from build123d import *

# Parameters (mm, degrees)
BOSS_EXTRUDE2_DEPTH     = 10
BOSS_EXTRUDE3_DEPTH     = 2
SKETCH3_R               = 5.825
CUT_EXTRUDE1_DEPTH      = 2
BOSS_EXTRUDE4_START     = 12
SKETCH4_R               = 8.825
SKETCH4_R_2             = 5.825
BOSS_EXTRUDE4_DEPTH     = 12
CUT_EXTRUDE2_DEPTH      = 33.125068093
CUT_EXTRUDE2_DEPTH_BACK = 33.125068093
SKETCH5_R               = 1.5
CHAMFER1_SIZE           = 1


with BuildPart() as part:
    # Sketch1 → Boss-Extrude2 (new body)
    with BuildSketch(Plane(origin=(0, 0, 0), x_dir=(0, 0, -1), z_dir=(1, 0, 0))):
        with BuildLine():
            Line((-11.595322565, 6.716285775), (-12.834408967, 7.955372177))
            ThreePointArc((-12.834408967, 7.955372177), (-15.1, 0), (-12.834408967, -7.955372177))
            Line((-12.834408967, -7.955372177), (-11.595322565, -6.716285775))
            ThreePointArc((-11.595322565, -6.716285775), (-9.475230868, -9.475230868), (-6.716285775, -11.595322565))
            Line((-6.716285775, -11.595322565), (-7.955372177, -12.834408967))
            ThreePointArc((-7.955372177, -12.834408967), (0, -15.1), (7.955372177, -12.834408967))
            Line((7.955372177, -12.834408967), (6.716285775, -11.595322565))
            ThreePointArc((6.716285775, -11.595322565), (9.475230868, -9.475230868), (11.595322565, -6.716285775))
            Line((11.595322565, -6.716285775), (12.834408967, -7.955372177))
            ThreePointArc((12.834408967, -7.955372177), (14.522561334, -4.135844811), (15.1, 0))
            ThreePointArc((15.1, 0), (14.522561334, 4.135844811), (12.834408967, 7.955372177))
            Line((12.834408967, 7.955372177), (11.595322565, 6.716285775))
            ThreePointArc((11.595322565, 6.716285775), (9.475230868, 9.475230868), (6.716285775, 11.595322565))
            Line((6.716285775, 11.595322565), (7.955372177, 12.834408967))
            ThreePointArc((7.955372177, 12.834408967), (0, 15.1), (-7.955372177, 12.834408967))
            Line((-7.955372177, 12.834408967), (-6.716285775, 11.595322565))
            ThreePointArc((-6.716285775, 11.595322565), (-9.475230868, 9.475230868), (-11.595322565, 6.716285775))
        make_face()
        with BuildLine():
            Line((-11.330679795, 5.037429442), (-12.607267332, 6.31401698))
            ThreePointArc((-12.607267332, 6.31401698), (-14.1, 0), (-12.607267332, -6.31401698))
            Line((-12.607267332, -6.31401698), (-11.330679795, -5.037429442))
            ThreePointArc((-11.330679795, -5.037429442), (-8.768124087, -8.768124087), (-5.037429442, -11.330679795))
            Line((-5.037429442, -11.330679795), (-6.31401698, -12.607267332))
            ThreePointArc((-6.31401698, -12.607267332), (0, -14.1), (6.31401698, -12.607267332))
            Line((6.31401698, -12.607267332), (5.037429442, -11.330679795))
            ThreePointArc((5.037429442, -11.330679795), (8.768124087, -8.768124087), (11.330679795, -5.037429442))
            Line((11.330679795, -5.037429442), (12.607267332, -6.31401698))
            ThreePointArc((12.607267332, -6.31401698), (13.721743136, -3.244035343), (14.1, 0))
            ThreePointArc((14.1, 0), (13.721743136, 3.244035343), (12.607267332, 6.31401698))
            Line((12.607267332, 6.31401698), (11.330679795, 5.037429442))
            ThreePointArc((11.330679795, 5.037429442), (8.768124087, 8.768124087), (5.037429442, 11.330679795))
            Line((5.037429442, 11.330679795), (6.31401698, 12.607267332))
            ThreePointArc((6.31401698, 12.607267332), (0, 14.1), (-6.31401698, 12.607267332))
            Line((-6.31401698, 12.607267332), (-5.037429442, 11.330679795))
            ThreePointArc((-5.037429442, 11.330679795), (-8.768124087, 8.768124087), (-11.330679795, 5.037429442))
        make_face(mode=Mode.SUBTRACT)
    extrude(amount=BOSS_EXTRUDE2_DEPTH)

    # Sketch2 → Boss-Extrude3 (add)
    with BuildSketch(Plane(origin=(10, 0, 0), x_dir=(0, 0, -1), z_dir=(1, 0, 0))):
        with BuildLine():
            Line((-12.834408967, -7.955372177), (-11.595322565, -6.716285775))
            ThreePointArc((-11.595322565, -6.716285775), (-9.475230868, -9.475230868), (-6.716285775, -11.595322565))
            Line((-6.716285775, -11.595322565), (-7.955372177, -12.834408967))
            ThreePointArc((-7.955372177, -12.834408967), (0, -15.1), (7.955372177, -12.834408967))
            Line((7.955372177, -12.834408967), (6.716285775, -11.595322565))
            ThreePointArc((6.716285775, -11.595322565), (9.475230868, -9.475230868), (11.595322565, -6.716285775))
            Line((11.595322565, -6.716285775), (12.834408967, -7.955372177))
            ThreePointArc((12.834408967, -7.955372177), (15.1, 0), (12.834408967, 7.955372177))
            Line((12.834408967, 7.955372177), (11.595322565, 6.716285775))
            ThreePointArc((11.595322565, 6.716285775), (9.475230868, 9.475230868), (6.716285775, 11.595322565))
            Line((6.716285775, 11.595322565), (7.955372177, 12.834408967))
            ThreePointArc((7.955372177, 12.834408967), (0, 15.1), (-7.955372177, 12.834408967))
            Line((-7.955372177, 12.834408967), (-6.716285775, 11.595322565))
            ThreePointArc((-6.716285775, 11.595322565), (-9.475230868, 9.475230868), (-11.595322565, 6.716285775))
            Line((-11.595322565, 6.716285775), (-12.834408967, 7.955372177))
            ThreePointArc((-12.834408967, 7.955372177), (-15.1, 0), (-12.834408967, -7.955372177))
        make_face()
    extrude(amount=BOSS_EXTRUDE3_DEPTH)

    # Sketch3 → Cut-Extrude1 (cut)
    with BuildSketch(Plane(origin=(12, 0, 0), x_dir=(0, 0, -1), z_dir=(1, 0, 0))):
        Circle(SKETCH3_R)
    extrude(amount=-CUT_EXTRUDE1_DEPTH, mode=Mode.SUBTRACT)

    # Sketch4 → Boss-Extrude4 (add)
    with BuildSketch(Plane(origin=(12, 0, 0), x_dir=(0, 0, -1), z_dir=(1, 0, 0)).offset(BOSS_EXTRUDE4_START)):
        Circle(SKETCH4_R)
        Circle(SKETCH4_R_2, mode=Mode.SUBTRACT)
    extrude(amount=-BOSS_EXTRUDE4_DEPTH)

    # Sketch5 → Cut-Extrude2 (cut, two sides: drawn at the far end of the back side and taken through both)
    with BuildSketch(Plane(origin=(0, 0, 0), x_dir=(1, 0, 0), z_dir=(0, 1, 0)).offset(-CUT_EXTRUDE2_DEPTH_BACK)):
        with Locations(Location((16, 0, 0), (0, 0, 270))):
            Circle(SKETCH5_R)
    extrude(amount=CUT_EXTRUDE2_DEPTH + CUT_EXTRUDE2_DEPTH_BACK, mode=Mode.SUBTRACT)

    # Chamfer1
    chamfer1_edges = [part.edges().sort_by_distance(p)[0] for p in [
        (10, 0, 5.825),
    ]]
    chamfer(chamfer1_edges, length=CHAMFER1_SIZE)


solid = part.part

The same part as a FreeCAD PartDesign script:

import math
import FreeCAD as App
import Part
import Sketcher

V = App.Vector


def edges_at(feature, points):
    """Names of the edges that pass closest to the given points."""
    edges = feature.Shape.Edges
    near = lambda p: min(range(len(edges)), key=lambda i: edges[i].distToShape(Part.Vertex(*p))[0])
    return sorted({f"Edge{near(p) + 1}" for p in points})

doc = App.newDocument("Part")
body = doc.addObject("PartDesign::Body", "Body")

# Sketch on YZ plane
sketch1 = body.newObject("Sketcher::SketchObject", "Sketch")
sketch1.AttachmentSupport = (doc.getObject("YZ_Plane"), [""])
sketch1.MapMode = "FlatFace"
sketch1.addGeometry(Part.LineSegment(V(6.716286, 11.595323, 0), V(7.955372, 12.834409, 0)), False)
sketch1.addGeometry(Part.ArcOfCircle(Part.Circle(V(0, 0, 0), V(0, 0, 1), 15.1), math.radians(58.207412), math.radians(121.792588)), False)
sketch1.addGeometry(Part.LineSegment(V(-7.955372, 12.834409, 0), V(-6.716286, 11.595323, 0)), False)
sketch1.addGeometry(Part.ArcOfCircle(Part.Circle(V(0, 0, 0), V(0, 0, 1), 13.4), math.radians(120.08044), math.radians(149.91956)), False)
sketch1.addGeometry(Part.LineSegment(V(-11.595323, 6.716286, 0), V(-12.834409, 7.955372, 0)), False)
sketch1.addGeometry(Part.ArcOfCircle(Part.Circle(V(0, 0, 0), V(0, 0, 1), 15.1), math.radians(148.207412), math.radians(211.792588)), False)
sketch1.addGeometry(Part.LineSegment(V(-12.834409, -7.955372, 0), V(-11.595323, -6.716286, 0)), False)
sketch1.addGeometry(Part.ArcOfCircle(Part.Circle(V(0, 0, 0), V(0, 0, 1), 13.4), math.radians(-149.91956), math.radians(-120.08044)), False)
sketch1.addGeometry(Part.LineSegment(V(-6.716286, -11.595323, 0), V(-7.955372, -12.834409, 0)), False)
sketch1.addGeometry(Part.ArcOfCircle(Part.Circle(V(0, 0, 0), V(0, 0, 1), 15.1), math.radians(-121.792588), math.radians(-90)), False)
sketch1.addGeometry(Part.ArcOfCircle(Part.Circle(V(0, 0, 0), V(0, 0, 1), 15.1), math.radians(-90), math.radians(-58.207412)), False)
sketch1.addGeometry(Part.LineSegment(V(7.955372, -12.834409, 0), V(6.716286, -11.595323, 0)), False)
sketch1.addGeometry(Part.ArcOfCircle(Part.Circle(V(0, 0, 0), V(0, 0, 1), 13.4), math.radians(-59.91956), math.radians(-30.08044)), False)
sketch1.addGeometry(Part.LineSegment(V(11.595323, -6.716286, 0), V(12.834409, -7.955372, 0)), False)
sketch1.addGeometry(Part.ArcOfCircle(Part.Circle(V(0, 0, 0), V(0, 0, 1), 15.1), math.radians(-31.792588), math.radians(31.792588)), False)
sketch1.addGeometry(Part.LineSegment(V(12.834409, 7.955372, 0), V(11.595323, 6.716286, 0)), False)
sketch1.addGeometry(Part.ArcOfCircle(Part.Circle(V(0, 0, 0), V(0, 0, 1), 13.4), math.radians(30.08044), math.radians(59.91956)), False)
sketch1.addGeometry(Part.LineSegment(V(6.314017, 12.607267, 0), V(5.037429, 11.33068, 0)), False)
sketch1.addGeometry(Part.ArcOfCircle(Part.Circle(V(0, 0, 0), V(0, 0, 1), 12.4), math.radians(23.969126), math.radians(66.030874)), False)
sketch1.addGeometry(Part.LineSegment(V(11.33068, 5.037429, 0), V(12.607267, 6.314017, 0)), False)
sketch1.addGeometry(Part.ArcOfCircle(Part.Circle(V(0, 0, 0), V(0, 0, 1), 14.1), math.radians(-26.60279), math.radians(26.60279)), False)
sketch1.addGeometry(Part.LineSegment(V(12.607267, -6.314017, 0), V(11.33068, -5.037429, 0)), False)
sketch1.addGeometry(Part.ArcOfCircle(Part.Circle(V(0, 0, 0), V(0, 0, 1), 12.4), math.radians(-66.030874), math.radians(-23.969126)), False)
sketch1.addGeometry(Part.LineSegment(V(5.037429, -11.33068, 0), V(6.314017, -12.607267, 0)), False)
sketch1.addGeometry(Part.ArcOfCircle(Part.Circle(V(0, 0, 0), V(0, 0, 1), 14.1), math.radians(-90), math.radians(-63.39721)), False)
sketch1.addGeometry(Part.ArcOfCircle(Part.Circle(V(0, 0, 0), V(0, 0, 1), 14.1), math.radians(-116.60279), math.radians(-90)), False)
sketch1.addGeometry(Part.LineSegment(V(-6.314017, -12.607267, 0), V(-5.037429, -11.33068, 0)), False)
sketch1.addGeometry(Part.ArcOfCircle(Part.Circle(V(0, 0, 0), V(0, 0, 1), 12.4), math.radians(-156.030874), math.radians(-113.969126)), False)
sketch1.addGeometry(Part.LineSegment(V(-11.33068, -5.037429, 0), V(-12.607267, -6.314017, 0)), False)
sketch1.addGeometry(Part.ArcOfCircle(Part.Circle(V(0, 0, 0), V(0, 0, 1), 14.1), math.radians(153.39721), math.radians(206.60279)), False)
sketch1.addGeometry(Part.LineSegment(V(-12.607267, 6.314017, 0), V(-11.33068, 5.037429, 0)), False)
sketch1.addGeometry(Part.ArcOfCircle(Part.Circle(V(0, 0, 0), V(0, 0, 1), 12.4), math.radians(113.969126), math.radians(156.030874)), False)
sketch1.addGeometry(Part.LineSegment(V(-5.037429, 11.33068, 0), V(-6.314017, 12.607267, 0)), False)
sketch1.addGeometry(Part.ArcOfCircle(Part.Circle(V(0, 0, 0), V(0, 0, 1), 14.1), math.radians(63.39721), math.radians(116.60279)), False)
sketch1.addConstraint(Sketcher.Constraint("Coincident", 0, 2, 1, 1))
sketch1.addConstraint(Sketcher.Constraint("Coincident", 1, 2, 2, 1))
sketch1.addConstraint(Sketcher.Constraint("Coincident", 2, 2, 3, 1))
sketch1.addConstraint(Sketcher.Constraint("Coincident", 3, 2, 4, 1))
sketch1.addConstraint(Sketcher.Constraint("Coincident", 4, 2, 5, 1))
sketch1.addConstraint(Sketcher.Constraint("Coincident", 5, 2, 6, 1))
sketch1.addConstraint(Sketcher.Constraint("Coincident", 6, 2, 7, 1))
sketch1.addConstraint(Sketcher.Constraint("Coincident", 7, 2, 8, 1))
sketch1.addConstraint(Sketcher.Constraint("Coincident", 8, 2, 9, 1))
sketch1.addConstraint(Sketcher.Constraint("Tangent", 9, 2, 10, 1))
sketch1.addConstraint(Sketcher.Constraint("Coincident", 10, 2, 11, 1))
sketch1.addConstraint(Sketcher.Constraint("Coincident", 11, 2, 12, 1))
sketch1.addConstraint(Sketcher.Constraint("Coincident", 12, 2, 13, 1))
sketch1.addConstraint(Sketcher.Constraint("Coincident", 13, 2, 14, 1))
sketch1.addConstraint(Sketcher.Constraint("Coincident", 14, 2, 15, 1))
sketch1.addConstraint(Sketcher.Constraint("Coincident", 15, 2, 16, 1))
sketch1.addConstraint(Sketcher.Constraint("Coincident", 16, 2, 0, 1))
sketch1.addConstraint(Sketcher.Constraint("Coincident", 17, 2, 18, 2))
sketch1.addConstraint(Sketcher.Constraint("Coincident", 18, 1, 19, 1))
sketch1.addConstraint(Sketcher.Constraint("Coincident", 19, 2, 20, 2))
sketch1.addConstraint(Sketcher.Constraint("Coincident", 20, 1, 21, 1))
sketch1.addConstraint(Sketcher.Constraint("Coincident", 21, 2, 22, 2))
sketch1.addConstraint(Sketcher.Constraint("Coincident", 22, 1, 23, 1))
sketch1.addConstraint(Sketcher.Constraint("Coincident", 23, 2, 24, 2))
sketch1.addConstraint(Sketcher.Constraint("Tangent", 24, 1, 25, 2))
sketch1.addConstraint(Sketcher.Constraint("Coincident", 25, 1, 26, 1))
sketch1.addConstraint(Sketcher.Constraint("Coincident", 26, 2, 27, 2))
sketch1.addConstraint(Sketcher.Constraint("Coincident", 27, 1, 28, 1))
sketch1.addConstraint(Sketcher.Constraint("Coincident", 28, 2, 29, 2))
sketch1.addConstraint(Sketcher.Constraint("Coincident", 29, 1, 30, 1))
sketch1.addConstraint(Sketcher.Constraint("Coincident", 30, 2, 31, 2))
sketch1.addConstraint(Sketcher.Constraint("Coincident", 31, 1, 32, 1))
sketch1.addConstraint(Sketcher.Constraint("Coincident", 32, 2, 33, 2))
sketch1.addConstraint(Sketcher.Constraint("Coincident", 33, 1, 17, 1))
sketch1.addConstraint(Sketcher.Constraint("Coincident", 1, 3, -1, 1))
sketch1.addConstraint(Sketcher.Constraint("Coincident", 3, 3, -1, 1))
sketch1.addConstraint(Sketcher.Constraint("Coincident", 5, 3, -1, 1))
sketch1.addConstraint(Sketcher.Constraint("Coincident", 7, 3, -1, 1))
sketch1.addConstraint(Sketcher.Constraint("Coincident", 9, 3, -1, 1))
sketch1.addConstraint(Sketcher.Constraint("Coincident", 12, 3, -1, 1))
sketch1.addConstraint(Sketcher.Constraint("Coincident", 14, 3, -1, 1))
sketch1.addConstraint(Sketcher.Constraint("Coincident", 16, 3, -1, 1))
sketch1.addConstraint(Sketcher.Constraint("Coincident", 18, 3, -1, 1))
sketch1.addConstraint(Sketcher.Constraint("Coincident", 20, 3, -1, 1))
sketch1.addConstraint(Sketcher.Constraint("Coincident", 22, 3, -1, 1))
sketch1.addConstraint(Sketcher.Constraint("Coincident", 24, 3, -1, 1))
sketch1.addConstraint(Sketcher.Constraint("Coincident", 27, 3, -1, 1))
sketch1.addConstraint(Sketcher.Constraint("Coincident", 29, 3, -1, 1))
sketch1.addConstraint(Sketcher.Constraint("Coincident", 31, 3, -1, 1))
sketch1.addConstraint(Sketcher.Constraint("Coincident", 33, 3, -1, 1))
sketch1.addConstraint(Sketcher.Constraint("Equal", 1, 5))
sketch1.addConstraint(Sketcher.Constraint("Equal", 3, 7))
sketch1.addConstraint(Sketcher.Constraint("Equal", 5, 9))
sketch1.addConstraint(Sketcher.Constraint("Equal", 9, 10))
sketch1.addConstraint(Sketcher.Constraint("Equal", 7, 12))
sketch1.addConstraint(Sketcher.Constraint("Equal", 10, 14))
sketch1.addConstraint(Sketcher.Constraint("Equal", 12, 16))
sketch1.addConstraint(Sketcher.Constraint("Equal", 18, 22))
sketch1.addConstraint(Sketcher.Constraint("Equal", 20, 24))
sketch1.addConstraint(Sketcher.Constraint("Equal", 24, 25))
sketch1.addConstraint(Sketcher.Constraint("Equal", 22, 27))
sketch1.addConstraint(Sketcher.Constraint("Equal", 25, 29))
sketch1.addConstraint(Sketcher.Constraint("Equal", 27, 31))
sketch1.addConstraint(Sketcher.Constraint("Equal", 29, 33))
sketch1.addConstraint(Sketcher.Constraint("PointOnObject", 9, 2, -2))
sketch1.addConstraint(Sketcher.Constraint("PointOnObject", 24, 1, -2))
sketch1.addConstraint(Sketcher.Constraint("Perpendicular", 0, 2))
sketch1.addConstraint(Sketcher.Constraint("Parallel", 2, 4))
sketch1.addConstraint(Sketcher.Constraint("Perpendicular", 4, 6))
sketch1.addConstraint(Sketcher.Constraint("Parallel", 6, 8))
sketch1.addConstraint(Sketcher.Constraint("Perpendicular", 8, 11))
sketch1.addConstraint(Sketcher.Constraint("Parallel", 11, 13))
sketch1.addConstraint(Sketcher.Constraint("Perpendicular", 13, 15))
sketch1.addConstraint(Sketcher.Constraint("Parallel", 15, 17))
sketch1.addConstraint(Sketcher.Constraint("Parallel", 17, 19))
sketch1.addConstraint(Sketcher.Constraint("Perpendicular", 19, 21))
sketch1.addConstraint(Sketcher.Constraint("Parallel", 21, 23))
sketch1.addConstraint(Sketcher.Constraint("Perpendicular", 23, 26))
sketch1.addConstraint(Sketcher.Constraint("Parallel", 26, 28))
sketch1.addConstraint(Sketcher.Constraint("Perpendicular", 28, 30))
sketch1.addConstraint(Sketcher.Constraint("Parallel", 30, 32))
sketch1.addConstraint(Sketcher.Constraint("Horizontal", 0, 2, 1, 2))
sketch1.addConstraint(Sketcher.Constraint("Horizontal", 8, 2, 10, 2))
sketch1.addConstraint(Sketcher.Constraint("Horizontal", 7, 2, 11, 2))
sketch1.addConstraint(Sketcher.Constraint("Horizontal", 6, 2, 12, 2))
sketch1.addConstraint(Sketcher.Constraint("Horizontal", 4, 2, 14, 2))
sketch1.addConstraint(Sketcher.Constraint("Horizontal", 23, 2, 25, 1))
sketch1.addConstraint(Sketcher.Constraint("Horizontal", 21, 2, 27, 1))
sketch1.addConstraint(Sketcher.Constraint("Horizontal", 19, 2, 29, 1))
sketch1.addConstraint(Sketcher.Constraint("Horizontal", 17, 2, 31, 1))
sketch1.addConstraint(Sketcher.Constraint("Vertical", 4, 2, 5, 2))
sketch1.addConstraint(Sketcher.Constraint("Vertical", 2, 2, 7, 2))
sketch1.addConstraint(Sketcher.Constraint("Vertical", 19, 2, 20, 1))
sketch1.addConstraint(Sketcher.Constraint("Vertical", 17, 2, 22, 1))
sketch1.addConstraint(Sketcher.Constraint("Equal", 2, 4))
sketch1.addConstraint(Sketcher.Constraint("Equal", 17, 19))
sketch1.addConstraint(Sketcher.Constraint("Radius", 1, 15.1))
sketch1.addConstraint(Sketcher.Constraint("Radius", 3, 13.4))
sketch1.addConstraint(Sketcher.Constraint("Radius", 18, 12.4))
sketch1.addConstraint(Sketcher.Constraint("Radius", 20, 14.1))
sketch1.addConstraint(Sketcher.Constraint("DistanceY", -1, 1, 0, 2, 12.834409))
sketch1.addConstraint(Sketcher.Constraint("DistanceX", -1, 1, 17, 2, 5.037429))
pad1 = body.newObject("PartDesign::Pad", "Pad")
pad1.Profile = sketch1
pad1.Length = 10

# Sketch on YZ plane
sketch2 = body.newObject("Sketcher::SketchObject", "Sketch001")
sketch2.AttachmentSupport = (doc.getObject("YZ_Plane"), [""])
sketch2.MapMode = "FlatFace"
sketch2.AttachmentOffset = App.Placement(V(0, 0, 10), App.Rotation())
sketch2.addGeometry(Part.LineSegment(V(-7.955372, 12.834409, 0), V(-6.716286, 11.595323, 0)), False)
sketch2.addGeometry(Part.ArcOfCircle(Part.Circle(V(0, 0, 0), V(0, 0, 1), 13.4), math.radians(120.08044), math.radians(149.91956)), False)
sketch2.addGeometry(Part.LineSegment(V(-11.595323, 6.716286, 0), V(-12.834409, 7.955372, 0)), False)
sketch2.addGeometry(Part.ArcOfCircle(Part.Circle(V(0, 0, 0), V(0, 0, 1), 15.1), math.radians(148.207412), math.radians(211.792588)), False)
sketch2.addGeometry(Part.LineSegment(V(-12.834409, -7.955372, 0), V(-11.595323, -6.716286, 0)), False)
sketch2.addGeometry(Part.ArcOfCircle(Part.Circle(V(0, 0, 0), V(0, 0, 1), 13.4), math.radians(-149.91956), math.radians(-120.08044)), False)
sketch2.addGeometry(Part.LineSegment(V(-6.716286, -11.595323, 0), V(-7.955372, -12.834409, 0)), False)
sketch2.addGeometry(Part.ArcOfCircle(Part.Circle(V(0, 0, 0), V(0, 0, 1), 15.1), math.radians(-121.792588), math.radians(-58.207412)), False)
sketch2.addGeometry(Part.LineSegment(V(7.955372, -12.834409, 0), V(6.716286, -11.595323, 0)), False)
sketch2.addGeometry(Part.ArcOfCircle(Part.Circle(V(0, 0, 0), V(0, 0, 1), 13.4), math.radians(-59.91956), math.radians(-30.08044)), False)
sketch2.addGeometry(Part.LineSegment(V(11.595323, -6.716286, 0), V(12.834409, -7.955372, 0)), False)
sketch2.addGeometry(Part.ArcOfCircle(Part.Circle(V(0, 0, 0), V(0, 0, 1), 15.1), math.radians(-31.792588), math.radians(31.792588)), False)
sketch2.addGeometry(Part.LineSegment(V(12.834409, 7.955372, 0), V(11.595323, 6.716286, 0)), False)
sketch2.addGeometry(Part.ArcOfCircle(Part.Circle(V(0, 0, 0), V(0, 0, 1), 13.4), math.radians(30.08044), math.radians(59.91956)), False)
sketch2.addGeometry(Part.LineSegment(V(6.716286, 11.595323, 0), V(7.955372, 12.834409, 0)), False)
sketch2.addGeometry(Part.ArcOfCircle(Part.Circle(V(0, 0, 0), V(0, 0, 1), 15.1), math.radians(58.207412), math.radians(121.792588)), False)
sketch2.addConstraint(Sketcher.Constraint("Coincident", 0, 2, 1, 1))
sketch2.addConstraint(Sketcher.Constraint("Coincident", 1, 2, 2, 1))
sketch2.addConstraint(Sketcher.Constraint("Coincident", 2, 2, 3, 1))
sketch2.addConstraint(Sketcher.Constraint("Coincident", 3, 2, 4, 1))
sketch2.addConstraint(Sketcher.Constraint("Coincident", 4, 2, 5, 1))
sketch2.addConstraint(Sketcher.Constraint("Coincident", 5, 2, 6, 1))
sketch2.addConstraint(Sketcher.Constraint("Coincident", 6, 2, 7, 1))
sketch2.addConstraint(Sketcher.Constraint("Coincident", 7, 2, 8, 1))
sketch2.addConstraint(Sketcher.Constraint("Coincident", 8, 2, 9, 1))
sketch2.addConstraint(Sketcher.Constraint("Coincident", 9, 2, 10, 1))
sketch2.addConstraint(Sketcher.Constraint("Coincident", 10, 2, 11, 1))
sketch2.addConstraint(Sketcher.Constraint("Coincident", 11, 2, 12, 1))
sketch2.addConstraint(Sketcher.Constraint("Coincident", 12, 2, 13, 1))
sketch2.addConstraint(Sketcher.Constraint("Coincident", 13, 2, 14, 1))
sketch2.addConstraint(Sketcher.Constraint("Coincident", 14, 2, 15, 1))
sketch2.addConstraint(Sketcher.Constraint("Coincident", 15, 2, 0, 1))
sketch2.addConstraint(Sketcher.Constraint("Coincident", 1, 3, -1, 1))
sketch2.addConstraint(Sketcher.Constraint("Coincident", 3, 3, -1, 1))
sketch2.addConstraint(Sketcher.Constraint("Coincident", 5, 3, -1, 1))
sketch2.addConstraint(Sketcher.Constraint("Coincident", 7, 3, -1, 1))
sketch2.addConstraint(Sketcher.Constraint("Coincident", 9, 3, -1, 1))
sketch2.addConstraint(Sketcher.Constraint("Coincident", 11, 3, -1, 1))
sketch2.addConstraint(Sketcher.Constraint("Coincident", 13, 3, -1, 1))
sketch2.addConstraint(Sketcher.Constraint("Coincident", 15, 3, -1, 1))
sketch2.addConstraint(Sketcher.Constraint("Equal", 1, 5))
sketch2.addConstraint(Sketcher.Constraint("Equal", 3, 7))
sketch2.addConstraint(Sketcher.Constraint("Equal", 5, 9))
sketch2.addConstraint(Sketcher.Constraint("Equal", 7, 11))
sketch2.addConstraint(Sketcher.Constraint("Equal", 9, 13))
sketch2.addConstraint(Sketcher.Constraint("Equal", 11, 15))
sketch2.addConstraint(Sketcher.Constraint("Parallel", 0, 2))
sketch2.addConstraint(Sketcher.Constraint("Perpendicular", 2, 4))
sketch2.addConstraint(Sketcher.Constraint("Parallel", 4, 6))
sketch2.addConstraint(Sketcher.Constraint("Perpendicular", 6, 8))
sketch2.addConstraint(Sketcher.Constraint("Parallel", 8, 10))
sketch2.addConstraint(Sketcher.Constraint("Perpendicular", 10, 12))
sketch2.addConstraint(Sketcher.Constraint("Parallel", 12, 14))
sketch2.addConstraint(Sketcher.Constraint("Horizontal", 6, 2, 7, 2))
sketch2.addConstraint(Sketcher.Constraint("Horizontal", 5, 2, 8, 2))
sketch2.addConstraint(Sketcher.Constraint("Horizontal", 4, 2, 9, 2))
sketch2.addConstraint(Sketcher.Constraint("Horizontal", 2, 2, 11, 2))
sketch2.addConstraint(Sketcher.Constraint("Horizontal", 0, 2, 13, 2))
sketch2.addConstraint(Sketcher.Constraint("Vertical", 2, 2, 3, 2))
sketch2.addConstraint(Sketcher.Constraint("Vertical", 0, 2, 5, 2))
sketch2.addConstraint(Sketcher.Constraint("Equal", 0, 2))
sketch2.addConstraint(Sketcher.Constraint("Radius", 1, 13.4))
sketch2.addConstraint(Sketcher.Constraint("Radius", 3, 15.1))
sketch2.addConstraint(Sketcher.Constraint("DistanceX", 2, 2, -1, 1, 12.834409))
pad2 = body.newObject("PartDesign::Pad", "Pad001")
pad2.Profile = sketch2
pad2.Length = 2

# Sketch on YZ plane
sketch3 = body.newObject("Sketcher::SketchObject", "Sketch002")
sketch3.AttachmentSupport = (doc.getObject("YZ_Plane"), [""])
sketch3.MapMode = "FlatFace"
sketch3.AttachmentOffset = App.Placement(V(0, 0, 12), App.Rotation())
sketch3.addGeometry(Part.Circle(V(0, 0, 0), V(0, 0, 1), 5.825), False)
sketch3.addConstraint(Sketcher.Constraint("Coincident", 0, 3, -1, 1))
sketch3.addConstraint(Sketcher.Constraint("Diameter", 0, 11.65))
pocket1 = body.newObject("PartDesign::Pocket", "Pocket")
pocket1.Profile = sketch3
pocket1.Length = 2

# Sketch on YZ plane
sketch4 = body.newObject("Sketcher::SketchObject", "Sketch003")
sketch4.AttachmentSupport = (doc.getObject("YZ_Plane"), [""])
sketch4.MapMode = "FlatFace"
sketch4.AttachmentOffset = App.Placement(V(0, 0, 24), App.Rotation())
sketch4.addGeometry(Part.Circle(V(0, 0, 0), V(0, 0, 1), 8.825), False)
sketch4.addGeometry(Part.Circle(V(0, 0, 0), V(0, 0, 1), 5.825), False)
sketch4.addConstraint(Sketcher.Constraint("Coincident", 0, 3, -1, 1))
sketch4.addConstraint(Sketcher.Constraint("Coincident", 1, 3, -1, 1))
sketch4.addConstraint(Sketcher.Constraint("Diameter", 0, 17.65))
sketch4.addConstraint(Sketcher.Constraint("Diameter", 1, 11.65))
pad3 = body.newObject("PartDesign::Pad", "Pad002")
pad3.Profile = sketch4
pad3.Length = 12
pad3.Reversed = True

# Sketch on XZ plane
sketch5 = body.newObject("Sketcher::SketchObject", "Sketch004")
sketch5.AttachmentSupport = (doc.getObject("XZ_Plane"), [""])
sketch5.MapMode = "FlatFace"
sketch5.addGeometry(Part.Circle(V(16, 0, 0), V(0, 0, 1), 1.5), False)
sketch5.addConstraint(Sketcher.Constraint("PointOnObject", 0, 3, -1))
sketch5.addConstraint(Sketcher.Constraint("Diameter", 0, 3.0))
sketch5.addConstraint(Sketcher.Constraint("DistanceX", -1, 1, 0, 3, 16.0))
pocket2 = body.newObject("PartDesign::Pocket", "Pocket001")
pocket2.Profile = sketch5
pocket2.Type = "ThroughAll"
pocket2.Midplane = True
doc.recompute()

chamfer = body.newObject("PartDesign::Chamfer", "Chamfer")
chamfer.Base = (pocket2, edges_at(pocket2, [(10, 0, 5.825)]))
chamfer.Size = 1

doc.recompute()
